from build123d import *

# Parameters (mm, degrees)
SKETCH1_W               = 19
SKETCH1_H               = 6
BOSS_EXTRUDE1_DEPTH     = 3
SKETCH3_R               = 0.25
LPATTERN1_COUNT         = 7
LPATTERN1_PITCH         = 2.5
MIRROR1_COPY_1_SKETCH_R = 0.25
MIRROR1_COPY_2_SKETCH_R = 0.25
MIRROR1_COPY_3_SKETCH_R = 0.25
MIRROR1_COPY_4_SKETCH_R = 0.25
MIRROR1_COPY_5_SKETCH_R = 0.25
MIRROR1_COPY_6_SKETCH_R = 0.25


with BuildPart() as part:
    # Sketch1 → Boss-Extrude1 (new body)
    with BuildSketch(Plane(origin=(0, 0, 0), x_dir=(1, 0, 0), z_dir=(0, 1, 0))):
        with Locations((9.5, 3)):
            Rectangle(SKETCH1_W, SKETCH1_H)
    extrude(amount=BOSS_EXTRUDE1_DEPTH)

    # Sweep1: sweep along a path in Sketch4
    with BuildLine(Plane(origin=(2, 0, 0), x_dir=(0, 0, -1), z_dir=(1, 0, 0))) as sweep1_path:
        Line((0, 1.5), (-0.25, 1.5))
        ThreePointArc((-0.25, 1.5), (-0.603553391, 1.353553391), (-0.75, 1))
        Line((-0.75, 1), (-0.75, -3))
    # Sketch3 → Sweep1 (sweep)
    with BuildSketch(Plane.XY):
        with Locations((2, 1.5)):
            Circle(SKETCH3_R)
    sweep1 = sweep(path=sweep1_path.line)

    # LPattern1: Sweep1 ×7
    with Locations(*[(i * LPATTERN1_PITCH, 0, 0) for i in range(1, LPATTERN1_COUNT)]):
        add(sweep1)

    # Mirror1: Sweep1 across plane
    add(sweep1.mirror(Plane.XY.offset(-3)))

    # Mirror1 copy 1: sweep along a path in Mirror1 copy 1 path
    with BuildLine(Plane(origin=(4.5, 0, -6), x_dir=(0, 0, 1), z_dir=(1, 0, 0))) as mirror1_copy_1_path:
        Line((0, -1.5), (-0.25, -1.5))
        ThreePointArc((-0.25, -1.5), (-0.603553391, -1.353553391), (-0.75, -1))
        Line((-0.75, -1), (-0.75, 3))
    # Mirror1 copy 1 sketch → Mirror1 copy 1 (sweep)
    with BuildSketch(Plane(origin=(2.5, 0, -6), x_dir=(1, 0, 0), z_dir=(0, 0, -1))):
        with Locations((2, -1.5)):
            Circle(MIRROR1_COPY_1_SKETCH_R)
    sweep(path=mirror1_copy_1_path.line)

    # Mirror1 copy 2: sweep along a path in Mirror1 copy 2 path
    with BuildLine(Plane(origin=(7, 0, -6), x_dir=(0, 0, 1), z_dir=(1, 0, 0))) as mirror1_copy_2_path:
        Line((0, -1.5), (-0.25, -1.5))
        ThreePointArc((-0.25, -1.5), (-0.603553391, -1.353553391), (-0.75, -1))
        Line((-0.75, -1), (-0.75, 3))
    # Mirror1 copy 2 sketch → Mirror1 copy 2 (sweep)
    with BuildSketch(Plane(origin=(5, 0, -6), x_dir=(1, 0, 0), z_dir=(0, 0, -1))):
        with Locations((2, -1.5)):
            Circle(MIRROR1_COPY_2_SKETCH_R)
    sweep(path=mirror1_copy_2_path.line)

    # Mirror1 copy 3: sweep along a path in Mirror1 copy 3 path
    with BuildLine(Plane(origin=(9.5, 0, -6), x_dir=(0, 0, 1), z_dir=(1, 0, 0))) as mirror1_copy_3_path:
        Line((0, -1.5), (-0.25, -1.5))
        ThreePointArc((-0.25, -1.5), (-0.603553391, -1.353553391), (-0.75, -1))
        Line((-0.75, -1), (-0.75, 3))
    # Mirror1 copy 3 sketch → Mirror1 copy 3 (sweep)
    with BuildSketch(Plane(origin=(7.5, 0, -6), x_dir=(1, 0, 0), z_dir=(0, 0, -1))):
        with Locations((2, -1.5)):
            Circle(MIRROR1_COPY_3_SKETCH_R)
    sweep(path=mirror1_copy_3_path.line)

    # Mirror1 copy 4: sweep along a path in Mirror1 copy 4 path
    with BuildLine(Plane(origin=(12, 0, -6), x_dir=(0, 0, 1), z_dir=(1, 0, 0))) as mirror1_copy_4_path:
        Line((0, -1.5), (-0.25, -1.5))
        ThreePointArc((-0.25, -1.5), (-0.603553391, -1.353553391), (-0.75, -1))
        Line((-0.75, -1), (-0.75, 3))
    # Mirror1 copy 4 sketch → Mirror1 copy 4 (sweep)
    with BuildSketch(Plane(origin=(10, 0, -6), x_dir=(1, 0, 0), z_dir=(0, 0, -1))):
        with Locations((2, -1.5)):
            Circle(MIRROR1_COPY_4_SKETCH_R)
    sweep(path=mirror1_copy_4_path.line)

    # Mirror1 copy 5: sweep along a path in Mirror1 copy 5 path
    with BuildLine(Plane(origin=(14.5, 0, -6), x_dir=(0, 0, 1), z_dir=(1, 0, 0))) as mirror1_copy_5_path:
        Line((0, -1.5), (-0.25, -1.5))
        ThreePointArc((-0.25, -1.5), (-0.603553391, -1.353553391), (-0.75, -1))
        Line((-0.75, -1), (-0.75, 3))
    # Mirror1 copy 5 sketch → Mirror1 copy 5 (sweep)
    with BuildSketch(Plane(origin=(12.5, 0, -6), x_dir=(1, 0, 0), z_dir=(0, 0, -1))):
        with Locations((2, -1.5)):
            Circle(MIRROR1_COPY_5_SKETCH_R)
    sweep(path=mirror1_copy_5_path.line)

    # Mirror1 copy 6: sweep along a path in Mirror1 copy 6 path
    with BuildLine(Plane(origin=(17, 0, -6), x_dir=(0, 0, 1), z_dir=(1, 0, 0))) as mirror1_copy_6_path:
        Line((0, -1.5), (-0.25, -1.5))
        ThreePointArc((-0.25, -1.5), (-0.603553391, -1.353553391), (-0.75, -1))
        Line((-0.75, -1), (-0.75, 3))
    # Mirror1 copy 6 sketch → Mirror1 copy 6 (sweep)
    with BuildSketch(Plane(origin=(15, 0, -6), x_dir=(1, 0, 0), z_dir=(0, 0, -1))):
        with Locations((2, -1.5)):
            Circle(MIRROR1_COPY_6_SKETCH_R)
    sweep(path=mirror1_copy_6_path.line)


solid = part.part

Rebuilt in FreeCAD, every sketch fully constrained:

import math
import FreeCAD as App
import Part
import Sketcher
Q = App.Units.Quantity

doc = App.newDocument("Part")
body = doc.addObject("PartDesign::Body", "Body")

# Sketch on XZ plane
sketch1 = body.newObject("Sketcher::SketchObject", "Sketch")
sketch1.AttachmentSupport = (doc.getObject("XZ_Plane"), [""])
sketch1.MapMode = "FlatFace"
sketch1.addGeometry(Part.LineSegment(App.Vector(0, -6, 0), App.Vector(0, 0, 0)), False)
sketch1.addGeometry(Part.LineSegment(App.Vector(0, 0, 0), App.Vector(19, 0, 0)), False)
sketch1.addGeometry(Part.LineSegment(App.Vector(19, 0, 0), App.Vector(19, -6, 0)), False)
sketch1.addGeometry(Part.LineSegment(App.Vector(19, -6, 0), App.Vector(0, -6, 0)), False)
sketch1.addConstraint(Sketcher.Constraint("Coincident", 0, 2, 1, 1))
sketch1.addConstraint(Sketcher.Constraint("Coincident", 1, 2, 2, 1))
sketch1.addConstraint(Sketcher.Constraint("Coincident", 2, 2, 3, 1))
sketch1.addConstraint(Sketcher.Constraint("Coincident", 3, 2, 0, 1))
sketch1.addConstraint(Sketcher.Constraint("Vertical", 0))
sketch1.addConstraint(Sketcher.Constraint("Horizontal", 1))
sketch1.addConstraint(Sketcher.Constraint("Vertical", 2))
sketch1.addConstraint(Sketcher.Constraint("Horizontal", 3))
sketch1.addConstraint(Sketcher.Constraint("Coincident", 0, 2, -1, 1))
sketch1.addConstraint(Sketcher.Constraint("DistanceX", 1, 1, 1, 2, Q("19 mm")))
sketch1.addConstraint(Sketcher.Constraint("DistanceY", 0, 1, 0, 2, Q("6 mm")))
pad1 = body.newObject("PartDesign::Pad", "Pad")
pad1.Profile = sketch1
pad1.Length = 3
pad1.Reversed = True

# Sketch on XY plane
sketch2 = body.newObject("Sketcher::SketchObject", "Sketch001")
sketch2.AttachmentSupport = (doc.getObject("XY_Plane"), [""])
sketch2.MapMode = "FlatFace"
sketch2.addGeometry(Part.Circle(App.Vector(2, 1.5, 0), App.Vector(0, 0, 1), 0.25), False)
sketch2.addConstraint(Sketcher.Constraint("Diameter", 0, Q("0.5 mm")))
sketch2.addConstraint(Sketcher.Constraint("DistanceX", -1, 1, 0, 3, Q("2 mm")))
sketch2.addConstraint(Sketcher.Constraint("DistanceY", -1, 1, 0, 3, Q("1.5 mm")))

# Sketch on YZ plane
sketch3 = body.newObject("Sketcher::SketchObject", "Sketch002")
sketch3.AttachmentSupport = (doc.getObject("YZ_Plane"), [""])
sketch3.MapMode = "FlatFace"
sketch3.AttachmentOffset = App.Placement(App.Vector(0, 0, 2), App.Rotation())
sketch3.addGeometry(Part.LineSegment(App.Vector(1.5, 0, 0), App.Vector(1.5, 0.25, 0)), False)
sketch3.addGeometry(Part.ArcOfCircle(Part.Circle(App.Vector(1, 0.25, 0), App.Vector(0, 0, 1), 0.5), math.radians(0), math.radians(90)), False)
sketch3.addGeometry(Part.LineSegment(App.Vector(1, 0.75, 0), App.Vector(-3, 0.75, 0)), False)
sketch3.addConstraint(Sketcher.Constraint("Tangent", 0, 2, 1, 1))
sketch3.addConstraint(Sketcher.Constraint("Tangent", 1, 2, 2, 1))
sketch3.addConstraint(Sketcher.Constraint("Vertical", 0))
sketch3.addConstraint(Sketcher.Constraint("Horizontal", 2))
sketch3.addConstraint(Sketcher.Constraint("PointOnObject", 0, 1, -1))
sketch3.addConstraint(Sketcher.Constraint("Radius", 1, Q("0.5 mm")))
sketch3.addConstraint(Sketcher.Constraint("DistanceX", 2, 2, 2, 1, Q("4 mm")))
sketch3.addConstraint(Sketcher.Constraint("DistanceX", -1, 1, 1, 3, Q("1 mm")))
sketch3.addConstraint(Sketcher.Constraint("DistanceY", 0, 1, 0, 2, Q("0.25 mm")))
doc.recompute()

additivepipe = body.newObject("PartDesign::AdditivePipe", "AdditivePipe")
additivepipe.Profile = sketch2
additivepipe.Spine = (sketch3, ["Edge1", "Edge2", "Edge3"])
doc.recompute()

linearpattern = body.newObject("PartDesign::LinearPattern", "LinearPattern")
linearpattern.Originals = [additivepipe]
linearpattern.Direction = (doc.getObject("X_Axis"), [""])
linearpattern.Mode = "offset"
linearpattern.Offset = 2.5
linearpattern.Occurrences = 7
body.Tip = linearpattern
doc.recompute()

datumplane = body.newObject("PartDesign::Plane", "DatumPlane")
datumplane.AttachmentSupport = (doc.getObject("XY_Plane"), [""])
datumplane.MapMode = "FlatFace"
datumplane.AttachmentOffset = App.Placement(App.Vector(0, 0, -3), App.Rotation())
mirrored = body.newObject("PartDesign::Mirrored", "Mirrored")
mirrored.Originals = [additivepipe]
mirrored.MirrorPlane = (datumplane, [""])
body.Tip = mirrored

# Sketch on XY plane
sketch4 = body.newObject("Sketcher::SketchObject", "Sketch003")
sketch4.AttachmentSupport = (doc.getObject("XY_Plane"), [""])
sketch4.MapMode = "FlatFace"
sketch4.AttachmentOffset = App.Placement(App.Vector(0, 0, -6), App.Rotation())
sketch4.addGeometry(Part.Circle(App.Vector(4.5, 1.5, 0), App.Vector(0, 0, 1), 0.25), False)
sketch4.addConstraint(Sketcher.Constraint("Diameter", 0, Q("0.5 mm")))
sketch4.addConstraint(Sketcher.Constraint("DistanceX", -1, 1, 0, 3, Q("4.5 mm")))
sketch4.addConstraint(Sketcher.Constraint("DistanceY", -1, 1, 0, 3, Q("1.5 mm")))

# Sketch on YZ plane
sketch5 = body.newObject("Sketcher::SketchObject", "Sketch004")
sketch5.AttachmentSupport = (doc.getObject("YZ_Plane"), [""])
sketch5.MapMode = "FlatFace"
sketch5.AttachmentOffset = App.Placement(App.Vector(0, 0, 4.5), App.Rotation())
sketch5.addGeometry(Part.LineSegment(App.Vector(1.5, -6, 0), App.Vector(1.5, -6.25, 0)), False)
sketch5.addGeometry(Part.ArcOfCircle(Part.Circle(App.Vector(1, -6.25, 0), App.Vector(0, 0, 1), 0.5), math.radians(-90), math.radians(0)), False)
sketch5.addGeometry(Part.LineSegment(App.Vector(1, -6.75, 0), App.Vector(-3, -6.75, 0)), False)
sketch5.addConstraint(Sketcher.Constraint("Tangent", 0, 2, 1, 2))
sketch5.addConstraint(Sketcher.Constraint("Tangent", 1, 1, 2, 1))
sketch5.addConstraint(Sketcher.Constraint("Vertical", 0))
sketch5.addConstraint(Sketcher.Constraint("Horizontal", 2))
sketch5.addConstraint(Sketcher.Constraint("Radius", 1, Q("0.5 mm")))
sketch5.addConstraint(Sketcher.Constraint("DistanceX", 2, 2, 2, 1, Q("4 mm")))
sketch5.addConstraint(Sketcher.Constraint("DistanceX", -1, 1, 1, 3, Q("1 mm")))
sketch5.addConstraint(Sketcher.Constraint("DistanceY", 0, 1, -1, 1, Q("6 mm")))
sketch5.addConstraint(Sketcher.Constraint("DistanceY", 0, 2, 0, 1, Q("0.25 mm")))
doc.recompute()

additivepipe2 = body.newObject("PartDesign::AdditivePipe", "AdditivePipe001")
additivepipe2.Profile = sketch4
additivepipe2.Spine = (sketch5, ["Edge1", "Edge2", "Edge3"])

# Sketch on XY plane
sketch6 = body.newObject("Sketcher::SketchObject", "Sketch005")
sketch6.AttachmentSupport = (doc.getObject("XY_Plane"), [""])
sketch6.MapMode = "FlatFace"
sketch6.AttachmentOffset = App.Placement(App.Vector(0, 0, -6), App.Rotation())
sketch6.addGeometry(Part.Circle(App.Vector(7, 1.5, 0), App.Vector(0, 0, 1), 0.25), False)
sketch6.addConstraint(Sketcher.Constraint("Diameter", 0, Q("0.5 mm")))
sketch6.addConstraint(Sketcher.Constraint("DistanceX", -1, 1, 0, 3, Q("7 mm")))
sketch6.addConstraint(Sketcher.Constraint("DistanceY", -1, 1, 0, 3, Q("1.5 mm")))

# Sketch on YZ plane
sketch7 = body.newObject("Sketcher::SketchObject", "Sketch006")
sketch7.AttachmentSupport = (doc.getObject("YZ_Plane"), [""])
sketch7.MapMode = "FlatFace"
sketch7.AttachmentOffset = App.Placement(App.Vector(0, 0, 7), App.Rotation())
sketch7.addGeometry(Part.LineSegment(App.Vector(1.5, -6, 0), App.Vector(1.5, -6.25, 0)), False)
sketch7.addGeometry(Part.ArcOfCircle(Part.Circle(App.Vector(1, -6.25, 0), App.Vector(0, 0, 1), 0.5), math.radians(-90), math.radians(0)), False)
sketch7.addGeometry(Part.LineSegment(App.Vector(1, -6.75, 0), App.Vector(-3, -6.75, 0)), False)
sketch7.addConstraint(Sketcher.Constraint("Tangent", 0, 2, 1, 2))
sketch7.addConstraint(Sketcher.Constraint("Tangent", 1, 1, 2, 1))
sketch7.addConstraint(Sketcher.Constraint("Vertical", 0))
sketch7.addConstraint(Sketcher.Constraint("Horizontal", 2))
sketch7.addConstraint(Sketcher.Constraint("Radius", 1, Q("0.5 mm")))
sketch7.addConstraint(Sketcher.Constraint("DistanceX", 2, 2, 2, 1, Q("4 mm")))
sketch7.addConstraint(Sketcher.Constraint("DistanceX", -1, 1, 1, 3, Q("1 mm")))
sketch7.addConstraint(Sketcher.Constraint("DistanceY", 0, 1, -1, 1, Q("6 mm")))
sketch7.addConstraint(Sketcher.Constraint("DistanceY", 0, 2, 0, 1, Q("0.25 mm")))
doc.recompute()

additivepipe3 = body.newObject("PartDesign::AdditivePipe", "AdditivePipe002")
additivepipe3.Profile = sketch6
additivepipe3.Spine = (sketch7, ["Edge1", "Edge2", "Edge3"])

# Sketch on XY plane
sketch8 = body.newObject("Sketcher::SketchObject", "Sketch007")
sketch8.AttachmentSupport = (doc.getObject("XY_Plane"), [""])
sketch8.MapMode = "FlatFace"
sketch8.AttachmentOffset = App.Placement(App.Vector(0, 0, -6), App.Rotation())
sketch8.addGeometry(Part.Circle(App.Vector(9.5, 1.5, 0), App.Vector(0, 0, 1), 0.25), False)
sketch8.addConstraint(Sketcher.Constraint("Diameter", 0, Q("0.5 mm")))
sketch8.addConstraint(Sketcher.Constraint("DistanceX", -1, 1, 0, 3, Q("9.5 mm")))
sketch8.addConstraint(Sketcher.Constraint("DistanceY", -1, 1, 0, 3, Q("1.5 mm")))

# Sketch on YZ plane
sketch9 = body.newObject("Sketcher::SketchObject", "Sketch008")
sketch9.AttachmentSupport = (doc.getObject("YZ_Plane"), [""])
sketch9.MapMode = "FlatFace"
sketch9.AttachmentOffset = App.Placement(App.Vector(0, 0, 9.5), App.Rotation())
sketch9.addGeometry(Part.LineSegment(App.Vector(1.5, -6, 0), App.Vector(1.5, -6.25, 0)), False)
sketch9.addGeometry(Part.ArcOfCircle(Part.Circle(App.Vector(1, -6.25, 0), App.Vector(0, 0, 1), 0.5), math.radians(-90), math.radians(0)), False)
sketch9.addGeometry(Part.LineSegment(App.Vector(1, -6.75, 0), App.Vector(-3, -6.75, 0)), False)
sketch9.addConstraint(Sketcher.Constraint("Tangent", 0, 2, 1, 2))
sketch9.addConstraint(Sketcher.Constraint("Tangent", 1, 1, 2, 1))
sketch9.addConstraint(Sketcher.Constraint("Vertical", 0))
sketch9.addConstraint(Sketcher.Constraint("Horizontal", 2))
sketch9.addConstraint(Sketcher.Constraint("Radius", 1, Q("0.5 mm")))
sketch9.addConstraint(Sketcher.Constraint("DistanceX", 2, 2, 2, 1, Q("4 mm")))
sketch9.addConstraint(Sketcher.Constraint("DistanceX", -1, 1, 1, 3, Q("1 mm")))
sketch9.addConstraint(Sketcher.Constraint("DistanceY", 0, 1, -1, 1, Q("6 mm")))
sketch9.addConstraint(Sketcher.Constraint("DistanceY", 0, 2, 0, 1, Q("0.25 mm")))
doc.recompute()

additivepipe4 = body.newObject("PartDesign::AdditivePipe", "AdditivePipe003")
additivepipe4.Profile = sketch8
additivepipe4.Spine = (sketch9, ["Edge1", "Edge2", "Edge3"])

# Sketch on XY plane
sketch10 = body.newObject("Sketcher::SketchObject", "Sketch009")
sketch10.AttachmentSupport = (doc.getObject("XY_Plane"), [""])
sketch10.MapMode = "FlatFace"
sketch10.AttachmentOffset = App.Placement(App.Vector(0, 0, -6), App.Rotation())
sketch10.addGeometry(Part.Circle(App.Vector(12, 1.5, 0), App.Vector(0, 0, 1), 0.25), False)
sketch10.addConstraint(Sketcher.Constraint("Diameter", 0, Q("0.5 mm")))
sketch10.addConstraint(Sketcher.Constraint("DistanceX", -1, 1, 0, 3, Q("12 mm")))
sketch10.addConstraint(Sketcher.Constraint("DistanceY", -1, 1, 0, 3, Q("1.5 mm")))

# Sketch on YZ plane
sketch11 = body.newObject("Sketcher::SketchObject", "Sketch010")
sketch11.AttachmentSupport = (doc.getObject("YZ_Plane"), [""])
sketch11.MapMode = "FlatFace"
sketch11.AttachmentOffset = App.Placement(App.Vector(0, 0, 12), App.Rotation())
sketch11.addGeometry(Part.LineSegment(App.Vector(1.5, -6, 0), App.Vector(1.5, -6.25, 0)), False)
sketch11.addGeometry(Part.ArcOfCircle(Part.Circle(App.Vector(1, -6.25, 0), App.Vector(0, 0, 1), 0.5), math.radians(-90), math.radians(0)), False)
sketch11.addGeometry(Part.LineSegment(App.Vector(1, -6.75, 0), App.Vector(-3, -6.75, 0)), False)
sketch11.addConstraint(Sketcher.Constraint("Tangent", 0, 2, 1, 2))
sketch11.addConstraint(Sketcher.Constraint("Tangent", 1, 1, 2, 1))
sketch11.addConstraint(Sketcher.Constraint("Vertical", 0))
sketch11.addConstraint(Sketcher.Constraint("Horizontal", 2))
sketch11.addConstraint(Sketcher.Constraint("Radius", 1, Q("0.5 mm")))
sketch11.addConstraint(Sketcher.Constraint("DistanceX", 2, 2, 2, 1, Q("4 mm")))
sketch11.addConstraint(Sketcher.Constraint("DistanceX", -1, 1, 1, 3, Q("1 mm")))
sketch11.addConstraint(Sketcher.Constraint("DistanceY", 0, 1, -1, 1, Q("6 mm")))
sketch11.addConstraint(Sketcher.Constraint("DistanceY", 0, 2, 0, 1, Q("0.25 mm")))
doc.recompute()

additivepipe5 = body.newObject("PartDesign::AdditivePipe", "AdditivePipe004")
additivepipe5.Profile = sketch10
additivepipe5.Spine = (sketch11, ["Edge1", "Edge2", "Edge3"])

# Sketch on XY plane
sketch12 = body.newObject("Sketcher::SketchObject", "Sketch011")
sketch12.AttachmentSupport = (doc.getObject("XY_Plane"), [""])
sketch12.MapMode = "FlatFace"
sketch12.AttachmentOffset = App.Placement(App.Vector(0, 0, -6), App.Rotation())
sketch12.addGeometry(Part.Circle(App.Vector(14.5, 1.5, 0), App.Vector(0, 0, 1), 0.25), False)
sketch12.addConstraint(Sketcher.Constraint("Diameter", 0, Q("0.5 mm")))
sketch12.addConstraint(Sketcher.Constraint("DistanceX", -1, 1, 0, 3, Q("14.5 mm")))
sketch12.addConstraint(Sketcher.Constraint("DistanceY", -1, 1, 0, 3, Q("1.5 mm")))

# Sketch on YZ plane
sketch13 = body.newObject("Sketcher::SketchObject", "Sketch012")
sketch13.AttachmentSupport = (doc.getObject("YZ_Plane"), [""])
sketch13.MapMode = "FlatFace"
sketch13.AttachmentOffset = App.Placement(App.Vector(0, 0, 14.5), App.Rotation())
sketch13.addGeometry(Part.LineSegment(App.Vector(1.5, -6, 0), App.Vector(1.5, -6.25, 0)), False)
sketch13.addGeometry(Part.ArcOfCircle(Part.Circle(App.Vector(1, -6.25, 0), App.Vector(0, 0, 1), 0.5), math.radians(-90), math.radians(0)), False)
sketch13.addGeometry(Part.LineSegment(App.Vector(1, -6.75, 0), App.Vector(-3, -6.75, 0)), False)
sketch13.addConstraint(Sketcher.Constraint("Tangent", 0, 2, 1, 2))
sketch13.addConstraint(Sketcher.Constraint("Tangent", 1, 1, 2, 1))
sketch13.addConstraint(Sketcher.Constraint("Vertical", 0))
sketch13.addConstraint(Sketcher.Constraint("Horizontal", 2))
sketch13.addConstraint(Sketcher.Constraint("Radius", 1, Q("0.5 mm")))
sketch13.addConstraint(Sketcher.Constraint("DistanceX", 2, 2, 2, 1, Q("4 mm")))
sketch13.addConstraint(Sketcher.Constraint("DistanceX", -1, 1, 1, 3, Q("1 mm")))
sketch13.addConstraint(Sketcher.Constraint("DistanceY", 0, 1, -1, 1, Q("6 mm")))
sketch13.addConstraint(Sketcher.Constraint("DistanceY", 0, 2, 0, 1, Q("0.25 mm")))
doc.recompute()

additivepipe6 = body.newObject("PartDesign::AdditivePipe", "AdditivePipe005")
additivepipe6.Profile = sketch12
additivepipe6.Spine = (sketch13, ["Edge1", "Edge2", "Edge3"])

# Sketch on XY plane
sketch14 = body.newObject("Sketcher::SketchObject", "Sketch013")
sketch14.AttachmentSupport = (doc.getObject("XY_Plane"), [""])
sketch14.MapMode = "FlatFace"
sketch14.AttachmentOffset = App.Placement(App.Vector(0, 0, -6), App.Rotation())
sketch14.addGeometry(Part.Circle(App.Vector(17, 1.5, 0), App.Vector(0, 0, 1), 0.25), False)
sketch14.addConstraint(Sketcher.Constraint("Diameter", 0, Q("0.5 mm")))
sketch14.addConstraint(Sketcher.Constraint("DistanceX", -1, 1, 0, 3, Q("17 mm")))
sketch14.addConstraint(Sketcher.Constraint("DistanceY", -1, 1, 0, 3, Q("1.5 mm")))

# Sketch on YZ plane
sketch15 = body.newObject("Sketcher::SketchObject", "Sketch014")
sketch15.AttachmentSupport = (doc.getObject("YZ_Plane"), [""])
sketch15.MapMode = "FlatFace"
sketch15.AttachmentOffset = App.Placement(App.Vector(0, 0, 17), App.Rotation())
sketch15.addGeometry(Part.LineSegment(App.Vector(1.5, -6, 0), App.Vector(1.5, -6.25, 0)), False)
sketch15.addGeometry(Part.ArcOfCircle(Part.Circle(App.Vector(1, -6.25, 0), App.Vector(0, 0, 1), 0.5), math.radians(-90), math.radians(0)), False)
sketch15.addGeometry(Part.LineSegment(App.Vector(1, -6.75, 0), App.Vector(-3, -6.75, 0)), False)
sketch15.addConstraint(Sketcher.Constraint("Tangent", 0, 2, 1, 2))
sketch15.addConstraint(Sketcher.Constraint("Tangent", 1, 1, 2, 1))
sketch15.addConstraint(Sketcher.Constraint("Vertical", 0))
sketch15.addConstraint(Sketcher.Constraint("Horizontal", 2))
sketch15.addConstraint(Sketcher.Constraint("Radius", 1, Q("0.5 mm")))
sketch15.addConstraint(Sketcher.Constraint("DistanceX", 2, 2, 2, 1, Q("4 mm")))
sketch15.addConstraint(Sketcher.Constraint("DistanceX", -1, 1, 1, 3, Q("1 mm")))
sketch15.addConstraint(Sketcher.Constraint("DistanceY", 0, 1, -1, 1, Q("6 mm")))
sketch15.addConstraint(Sketcher.Constraint("DistanceY", 0, 2, 0, 1, Q("0.25 mm")))
doc.recompute()

additivepipe7 = body.newObject("PartDesign::AdditivePipe", "AdditivePipe006")
additivepipe7.Profile = sketch14
additivepipe7.Spine = (sketch15, ["Edge1", "Edge2", "Edge3"])

doc.recompute()
